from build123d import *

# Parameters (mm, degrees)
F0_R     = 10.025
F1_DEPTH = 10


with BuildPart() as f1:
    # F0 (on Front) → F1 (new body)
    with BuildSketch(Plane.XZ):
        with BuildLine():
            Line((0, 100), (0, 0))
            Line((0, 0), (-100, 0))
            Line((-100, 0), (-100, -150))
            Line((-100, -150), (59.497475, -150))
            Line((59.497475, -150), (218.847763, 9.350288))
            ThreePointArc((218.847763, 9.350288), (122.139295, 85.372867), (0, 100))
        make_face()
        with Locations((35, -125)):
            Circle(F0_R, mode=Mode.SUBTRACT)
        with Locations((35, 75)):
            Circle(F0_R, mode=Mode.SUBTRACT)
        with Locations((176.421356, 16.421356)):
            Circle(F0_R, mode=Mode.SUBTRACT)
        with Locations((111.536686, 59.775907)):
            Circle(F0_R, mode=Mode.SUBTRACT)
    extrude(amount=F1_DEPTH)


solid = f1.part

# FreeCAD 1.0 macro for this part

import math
import FreeCAD as App
import Part
import Sketcher

V = App.Vector
Q = App.Units.Quantity

doc = App.newDocument("Part")
body = doc.addObject("PartDesign::Body", "Body")

sketch1 = body.newObject("Sketcher::SketchObject", "Sketch")
sketch1.AttachmentSupport = (doc.getObject("XZ_Plane"), [""])
sketch1.MapMode = "FlatFace"
sketch1.addGeometry([
    Part.LineSegment(V(0, 100, 0), V(0, 0, 0)),
    Part.LineSegment(V(0, 0, 0), V(-100, 0, 0)),
    Part.LineSegment(V(-100, 0, 0), V(-100, -150, 0)),
    Part.LineSegment(V(-100, -150, 0), V(59, -150, 0)),
    Part.LineSegment(V(59, -150, 0), V(219, 9, 0)),
    Part.ArcOfCircle(Part.Circle(V(35, -125, 0), V(0, 0, 1), 228), math.radians(36), math.radians(99)),
    Part.Circle(V(35, -125, 0), V(0, 0, 1), 10),
    Part.Circle(V(35, 75, 0), V(0, 0, 1), 10),
    Part.Circle(V(176, 16, 0), V(0, 0, 1), 10),
    Part.Circle(V(112, 60, 0), V(0, 0, 1), 10),
], False)
sketch1.addConstraint([
    Sketcher.Constraint("Coincident", 0, 2, 1, 1),
    Sketcher.Constraint("Coincident", 1, 2, 2, 1),
    Sketcher.Constraint("Coincident", 2, 2, 3, 1),
    Sketcher.Constraint("Coincident", 3, 2, 4, 1),
    Sketcher.Constraint("Coincident", 4, 2, 5, 1),
    Sketcher.Constraint("Coincident", 5, 2, 0, 1),
    Sketcher.Constraint("Vertical", 0),
    Sketcher.Constraint("Horizontal", 1),
    Sketcher.Constraint("Vertical", 2),
    Sketcher.Constraint("Horizontal", 3),
    Sketcher.Constraint("Coincident", 0, 2, -1, 1),
    Sketcher.Constraint("Coincident", 6, 3, 5, 3),
    Sketcher.Constraint("Equal", 6, 7),
    Sketcher.Constraint("Equal", 7, 8),
    Sketcher.Constraint("Equal", 8, 9),
    Sketcher.Constraint("Vertical", 6, 3, 7, 3),
    Sketcher.Constraint("Equal", 1, 0),
    Sketcher.Constraint("Diameter", 6, 20.05),
    Sketcher.Constraint("DistanceX", 1, 2, 1, 1, 100.0),
    Sketcher.Constraint("DistanceY", 2, 2, 2, 1, 150.0),
    Sketcher.Constraint("Angle", 4, Q("45 deg")),
    Sketcher.Constraint("DistanceX", -1, 1, 5, 3, 35.0),
    Sketcher.Constraint("DistanceY", 5, 3, -1, 1, 125.0),
    Sketcher.Constraint("DistanceY", -1, 1, 7, 3, 75.0),
    Sketcher.Constraint("Distance", 4, 225.355338),
    Sketcher.Constraint("DistanceX", 9, 3, 8, 3, 64.88467),
    Sketcher.Constraint("DistanceY", 8, 3, 9, 3, 43.354551),
    Sketcher.Constraint("DistanceX", 3, 2, 8, 3, 116.923881),
    Sketcher.Constraint("DistanceY", 4, 2, 9, 3, 50.425619),
])
pad1 = body.newObject("PartDesign::Pad", "Pad")
pad1.Profile = sketch1
pad1.Length = 10

doc.recompute()
